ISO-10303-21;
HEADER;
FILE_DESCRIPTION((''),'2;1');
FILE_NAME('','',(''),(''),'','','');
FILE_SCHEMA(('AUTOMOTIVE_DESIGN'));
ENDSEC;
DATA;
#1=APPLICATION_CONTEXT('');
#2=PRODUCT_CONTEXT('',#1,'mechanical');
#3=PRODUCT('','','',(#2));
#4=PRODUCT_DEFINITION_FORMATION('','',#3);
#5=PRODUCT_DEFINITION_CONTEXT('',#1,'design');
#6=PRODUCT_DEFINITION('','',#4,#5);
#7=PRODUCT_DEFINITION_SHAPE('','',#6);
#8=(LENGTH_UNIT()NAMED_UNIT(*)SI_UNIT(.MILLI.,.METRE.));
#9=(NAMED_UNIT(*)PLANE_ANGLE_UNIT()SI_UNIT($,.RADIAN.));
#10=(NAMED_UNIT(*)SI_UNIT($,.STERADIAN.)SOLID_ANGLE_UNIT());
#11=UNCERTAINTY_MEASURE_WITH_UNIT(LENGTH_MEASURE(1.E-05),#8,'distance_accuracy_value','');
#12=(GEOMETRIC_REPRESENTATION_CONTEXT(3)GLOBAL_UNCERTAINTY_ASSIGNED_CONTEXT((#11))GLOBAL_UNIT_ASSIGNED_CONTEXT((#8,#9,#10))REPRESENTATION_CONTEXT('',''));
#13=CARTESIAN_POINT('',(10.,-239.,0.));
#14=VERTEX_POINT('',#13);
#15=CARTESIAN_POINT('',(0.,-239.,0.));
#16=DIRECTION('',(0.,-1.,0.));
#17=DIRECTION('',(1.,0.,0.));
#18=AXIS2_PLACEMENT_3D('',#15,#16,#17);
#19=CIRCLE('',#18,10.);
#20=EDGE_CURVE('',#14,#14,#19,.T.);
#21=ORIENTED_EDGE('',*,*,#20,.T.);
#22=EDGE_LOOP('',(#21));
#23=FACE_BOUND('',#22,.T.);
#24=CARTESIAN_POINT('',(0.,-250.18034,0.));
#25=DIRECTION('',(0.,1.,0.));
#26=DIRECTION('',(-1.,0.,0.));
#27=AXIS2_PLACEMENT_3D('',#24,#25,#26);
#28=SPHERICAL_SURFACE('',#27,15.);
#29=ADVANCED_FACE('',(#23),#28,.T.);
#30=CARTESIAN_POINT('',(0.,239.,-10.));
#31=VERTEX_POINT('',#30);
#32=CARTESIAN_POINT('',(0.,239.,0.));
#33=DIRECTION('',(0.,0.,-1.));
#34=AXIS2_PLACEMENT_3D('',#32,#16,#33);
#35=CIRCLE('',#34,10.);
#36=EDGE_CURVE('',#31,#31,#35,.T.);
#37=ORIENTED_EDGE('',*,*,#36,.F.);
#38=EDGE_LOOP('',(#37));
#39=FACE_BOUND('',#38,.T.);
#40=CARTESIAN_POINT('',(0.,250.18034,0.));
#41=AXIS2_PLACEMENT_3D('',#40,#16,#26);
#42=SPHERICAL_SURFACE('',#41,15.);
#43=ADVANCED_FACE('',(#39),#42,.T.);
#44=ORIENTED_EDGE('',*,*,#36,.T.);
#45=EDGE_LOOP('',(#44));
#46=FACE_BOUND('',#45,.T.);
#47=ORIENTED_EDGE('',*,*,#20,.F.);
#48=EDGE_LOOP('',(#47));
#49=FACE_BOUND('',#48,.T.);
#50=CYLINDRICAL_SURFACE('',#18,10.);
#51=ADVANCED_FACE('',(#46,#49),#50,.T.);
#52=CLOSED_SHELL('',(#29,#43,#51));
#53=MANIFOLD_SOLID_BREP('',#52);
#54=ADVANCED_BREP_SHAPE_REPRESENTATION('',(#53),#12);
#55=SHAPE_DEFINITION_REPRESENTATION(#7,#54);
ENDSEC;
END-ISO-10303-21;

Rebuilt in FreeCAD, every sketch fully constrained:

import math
import FreeCAD as App
import Part
import Sketcher


def add_polygon(sketch, points):
    """Adds a closed chain of lines whose ends are joined by coincident constraints."""
    first, n = sketch.GeometryCount, len(points)
    for a, b in zip(points, points[1:] + points[:1]):
        sketch.addGeometry(Part.LineSegment(App.Vector(*a, 0), App.Vector(*b, 0)), False)
    for i in range(n):
        sketch.addConstraint(Sketcher.Constraint("Coincident", first + i, 2, first + (i + 1) % n, 1))

doc = App.newDocument("Part")
body = doc.addObject("PartDesign::Body", "Body")

sketch1 = body.newObject("Sketcher::SketchObject", "Sketch")
sketch1.AttachmentSupport = (doc.getObject("XY_Plane"), [""])
sketch1.MapMode = "FlatFace"
add_polygon(sketch1, [(-10, 239), (-10, -239), (0, -239), (0, 239)])
sketch1.addConstraint(Sketcher.Constraint("Vertical", 0))
sketch1.addConstraint(Sketcher.Constraint("Horizontal", 1))
sketch1.addConstraint(Sketcher.Constraint("Vertical", 2))
sketch1.addConstraint(Sketcher.Constraint("Horizontal", 3))
sketch1.addConstraint(Sketcher.Constraint("Symmetric", 1, 2, 2, 2, -1, 1))
sketch1.addConstraint(Sketcher.Constraint("DistanceX", 1, 1, 1, 2, 10.0))
sketch1.addConstraint(Sketcher.Constraint("DistanceY", 0, 2, 0, 1, 478.0))
revolution = body.newObject("PartDesign::Revolution", "Revolution")
revolution.Profile = sketch1
revolution.ReferenceAxis = (sketch1, ["V_Axis"])
revolution.Angle = 360

sketch2 = body.newObject("Sketcher::SketchObject", "Sketch001")
sketch2.AttachmentSupport = (doc.getObject("XY_Plane"), [""])
sketch2.MapMode = "FlatFace"
sketch2.addGeometry(Part.LineSegment(App.Vector(-10, 239, 0), App.Vector(0, 239, 0)), False)
sketch2.addGeometry(Part.LineSegment(App.Vector(0, 239, 0), App.Vector(0, 265.18034, 0)), False)
sketch2.addGeometry(Part.ArcOfCircle(Part.Circle(App.Vector(0, 250.18034, 0), App.Vector(0, 0, 1), 15), math.radians(90), math.radians(228.189685)), False)
sketch2.addConstraint(Sketcher.Constraint("Coincident", 0, 2, 1, 1))
sketch2.addConstraint(Sketcher.Constraint("Coincident", 1, 2, 2, 1))
sketch2.addConstraint(Sketcher.Constraint("Coincident", 2, 2, 0, 1))
sketch2.addConstraint(Sketcher.Constraint("Horizontal", 0))
sketch2.addConstraint(Sketcher.Constraint("Vertical", 1))
sketch2.addConstraint(Sketcher.Constraint("PointOnObject", 2, 3, -2))
sketch2.addConstraint(Sketcher.Constraint("PointOnObject", 0, 2, -2))
sketch2.addConstraint(Sketcher.Constraint("Radius", 2, 15.0))
sketch2.addConstraint(Sketcher.Constraint("DistanceX", 0, 1, 0, 2, 10.0))
sketch2.addConstraint(Sketcher.Constraint("DistanceY", -1, 1, 0, 2, 239.0))
revolution2 = body.newObject("PartDesign::Revolution", "Revolution001")
revolution2.Profile = sketch2
revolution2.ReferenceAxis = (sketch2, ["V_Axis"])
revolution2.Angle = 360
doc.recompute()

mirrored = body.newObject("PartDesign::Mirrored", "Mirrored")
mirrored.Originals = [revolution2]
mirrored.MirrorPlane = (doc.getObject("XZ_Plane"), [""])
body.Tip = mirrored

doc.recompute()
